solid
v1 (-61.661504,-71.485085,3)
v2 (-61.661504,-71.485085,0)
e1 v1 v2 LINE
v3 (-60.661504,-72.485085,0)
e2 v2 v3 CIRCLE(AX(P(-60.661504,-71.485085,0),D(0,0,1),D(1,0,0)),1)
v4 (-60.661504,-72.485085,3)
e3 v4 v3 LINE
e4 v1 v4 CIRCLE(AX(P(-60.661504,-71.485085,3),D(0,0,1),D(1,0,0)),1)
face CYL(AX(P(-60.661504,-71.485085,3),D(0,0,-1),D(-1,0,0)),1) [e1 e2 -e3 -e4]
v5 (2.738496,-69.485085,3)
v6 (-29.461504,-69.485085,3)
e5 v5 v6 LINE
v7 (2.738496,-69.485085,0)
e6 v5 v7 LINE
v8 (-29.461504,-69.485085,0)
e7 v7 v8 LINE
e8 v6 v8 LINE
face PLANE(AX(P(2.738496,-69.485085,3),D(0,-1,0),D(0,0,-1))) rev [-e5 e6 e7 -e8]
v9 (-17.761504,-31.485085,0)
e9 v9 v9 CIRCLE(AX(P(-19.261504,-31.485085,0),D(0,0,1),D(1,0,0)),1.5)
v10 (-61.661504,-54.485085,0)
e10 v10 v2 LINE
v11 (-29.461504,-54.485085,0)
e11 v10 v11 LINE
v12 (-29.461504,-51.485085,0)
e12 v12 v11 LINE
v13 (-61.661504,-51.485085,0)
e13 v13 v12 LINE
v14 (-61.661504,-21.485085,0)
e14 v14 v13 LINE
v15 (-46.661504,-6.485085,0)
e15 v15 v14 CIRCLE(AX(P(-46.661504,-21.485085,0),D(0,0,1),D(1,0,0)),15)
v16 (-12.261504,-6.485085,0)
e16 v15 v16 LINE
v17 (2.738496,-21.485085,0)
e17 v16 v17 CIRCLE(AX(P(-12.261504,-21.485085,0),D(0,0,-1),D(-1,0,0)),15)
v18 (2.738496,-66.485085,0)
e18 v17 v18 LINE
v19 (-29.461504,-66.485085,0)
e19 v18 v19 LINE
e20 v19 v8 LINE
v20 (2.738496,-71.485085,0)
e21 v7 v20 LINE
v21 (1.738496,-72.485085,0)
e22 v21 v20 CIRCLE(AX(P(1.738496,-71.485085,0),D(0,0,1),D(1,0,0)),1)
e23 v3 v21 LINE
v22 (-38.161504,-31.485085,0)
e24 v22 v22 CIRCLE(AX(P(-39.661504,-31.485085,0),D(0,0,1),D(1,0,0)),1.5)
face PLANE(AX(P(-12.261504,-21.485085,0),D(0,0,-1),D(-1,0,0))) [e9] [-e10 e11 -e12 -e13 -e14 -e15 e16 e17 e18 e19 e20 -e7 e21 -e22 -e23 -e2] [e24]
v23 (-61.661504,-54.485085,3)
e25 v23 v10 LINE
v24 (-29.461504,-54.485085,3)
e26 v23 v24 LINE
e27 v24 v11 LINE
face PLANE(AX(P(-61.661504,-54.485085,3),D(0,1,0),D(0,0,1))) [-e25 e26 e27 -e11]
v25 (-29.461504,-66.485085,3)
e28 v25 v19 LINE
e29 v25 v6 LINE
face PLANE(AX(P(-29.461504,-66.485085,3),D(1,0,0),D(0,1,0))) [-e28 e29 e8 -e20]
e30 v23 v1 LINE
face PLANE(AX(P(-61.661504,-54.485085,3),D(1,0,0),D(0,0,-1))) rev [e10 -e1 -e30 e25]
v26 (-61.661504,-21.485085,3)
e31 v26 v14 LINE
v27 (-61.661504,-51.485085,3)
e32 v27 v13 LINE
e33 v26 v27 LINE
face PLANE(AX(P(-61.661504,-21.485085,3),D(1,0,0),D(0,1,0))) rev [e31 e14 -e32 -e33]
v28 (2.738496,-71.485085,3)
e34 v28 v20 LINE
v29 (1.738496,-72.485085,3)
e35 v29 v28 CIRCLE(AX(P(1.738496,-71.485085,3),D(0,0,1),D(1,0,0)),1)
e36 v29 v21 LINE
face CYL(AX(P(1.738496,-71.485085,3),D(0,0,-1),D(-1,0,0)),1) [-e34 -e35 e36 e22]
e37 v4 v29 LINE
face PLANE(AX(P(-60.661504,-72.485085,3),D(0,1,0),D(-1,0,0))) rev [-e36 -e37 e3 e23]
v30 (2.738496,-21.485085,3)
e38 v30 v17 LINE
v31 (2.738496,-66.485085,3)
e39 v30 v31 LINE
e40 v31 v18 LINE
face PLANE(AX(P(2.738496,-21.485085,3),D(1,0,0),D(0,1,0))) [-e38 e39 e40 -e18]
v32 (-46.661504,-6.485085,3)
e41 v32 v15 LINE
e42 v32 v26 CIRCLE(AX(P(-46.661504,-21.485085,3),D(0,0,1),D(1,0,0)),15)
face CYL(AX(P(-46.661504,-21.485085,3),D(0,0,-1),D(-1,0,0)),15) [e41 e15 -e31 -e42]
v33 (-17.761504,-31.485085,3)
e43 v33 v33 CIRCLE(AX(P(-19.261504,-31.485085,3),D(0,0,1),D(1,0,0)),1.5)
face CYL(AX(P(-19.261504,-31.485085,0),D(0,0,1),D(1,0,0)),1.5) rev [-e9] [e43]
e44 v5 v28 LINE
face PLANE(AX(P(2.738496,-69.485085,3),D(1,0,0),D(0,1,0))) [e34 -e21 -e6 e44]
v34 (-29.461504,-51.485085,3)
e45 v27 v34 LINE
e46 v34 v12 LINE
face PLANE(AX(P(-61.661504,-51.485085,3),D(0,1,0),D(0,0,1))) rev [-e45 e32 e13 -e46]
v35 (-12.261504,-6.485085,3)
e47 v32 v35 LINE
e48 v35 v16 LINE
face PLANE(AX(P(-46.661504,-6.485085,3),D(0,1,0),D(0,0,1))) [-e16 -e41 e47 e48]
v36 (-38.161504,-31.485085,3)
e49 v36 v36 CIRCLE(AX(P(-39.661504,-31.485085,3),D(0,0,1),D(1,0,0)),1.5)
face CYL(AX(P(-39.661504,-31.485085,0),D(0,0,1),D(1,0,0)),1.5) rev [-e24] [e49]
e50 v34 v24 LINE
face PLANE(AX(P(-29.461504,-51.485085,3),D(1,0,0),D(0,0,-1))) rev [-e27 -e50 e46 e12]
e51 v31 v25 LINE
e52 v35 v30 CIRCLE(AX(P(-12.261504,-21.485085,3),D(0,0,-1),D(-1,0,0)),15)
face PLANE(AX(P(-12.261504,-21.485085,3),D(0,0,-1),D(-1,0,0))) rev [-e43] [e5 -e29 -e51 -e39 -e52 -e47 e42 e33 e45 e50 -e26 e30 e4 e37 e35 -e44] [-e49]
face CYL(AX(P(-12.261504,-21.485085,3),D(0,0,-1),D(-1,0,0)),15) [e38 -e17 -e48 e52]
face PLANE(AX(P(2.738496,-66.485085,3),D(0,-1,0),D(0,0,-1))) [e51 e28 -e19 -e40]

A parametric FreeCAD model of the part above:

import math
import FreeCAD as App
import Part
import Sketcher
from FreeCAD import Vector

doc = App.newDocument("Part")
body = doc.addObject("PartDesign::Body", "Body")

# Sketch on XY plane
sketch1 = doc.addObject("Sketcher::SketchObject", "Sketch")
body.addObject(sketch1)
sketch1.AttachmentSupport = (doc.XY_Plane, [""])
sketch1.MapMode = "FlatFace"
sketch1.addGeometry(Part.LineSegment(Vector(-12.261504, -6.485085, 0), Vector(-46.661504, -6.485085, 0)), False)
sketch1.addGeometry(Part.ArcOfCircle(Part.Circle(Vector(-46.661504, -21.485085, 0), Vector(0, 0, 1), 15), math.radians(90), math.radians(180)), False)
sketch1.addGeometry(Part.LineSegment(Vector(-61.661504, -21.485085, 0), Vector(-61.661504, -51.485085, 0)), False)
sketch1.addGeometry(Part.LineSegment(Vector(-61.661504, -51.485085, 0), Vector(-29.461504, -51.485085, 0)), False)
sketch1.addGeometry(Part.LineSegment(Vector(-29.461504, -51.485085, 0), Vector(-29.461504, -54.485085, 0)), False)
sketch1.addGeometry(Part.LineSegment(Vector(-29.461504, -54.485085, 0), Vector(-61.661504, -54.485085, 0)), False)
sketch1.addGeometry(Part.LineSegment(Vector(-61.661504, -54.485085, 0), Vector(-61.661504, -71.485085, 0)), False)
sketch1.addGeometry(Part.ArcOfCircle(Part.Circle(Vector(-60.661504, -71.485085, 0), Vector(0, 0, 1), 1), math.radians(-180), math.radians(-90)), False)
sketch1.addGeometry(Part.LineSegment(Vector(-60.661504, -72.485085, 0), Vector(1.738496, -72.485085, 0)), False)
sketch1.addGeometry(Part.ArcOfCircle(Part.Circle(Vector(1.738496, -71.485085, 0), Vector(0, 0, 1), 1), math.radians(-90), math.radians(0)), False)
sketch1.addGeometry(Part.LineSegment(Vector(2.738496, -71.485085, 0), Vector(2.738496, -69.485085, 0)), False)
sketch1.addGeometry(Part.LineSegment(Vector(2.738496, -69.485085, 0), Vector(-29.461504, -69.485085, 0)), False)
sketch1.addGeometry(Part.LineSegment(Vector(-29.461504, -69.485085, 0), Vector(-29.461504, -66.485085, 0)), False)
sketch1.addGeometry(Part.LineSegment(Vector(-29.461504, -66.485085, 0), Vector(2.738496, -66.485085, 0)), False)
sketch1.addGeometry(Part.LineSegment(Vector(2.738496, -66.485085, 0), Vector(2.738496, -21.485085, 0)), False)
sketch1.addGeometry(Part.ArcOfCircle(Part.Circle(Vector(-12.261504, -21.485085, 0), Vector(0, 0, 1), 15), math.radians(0), math.radians(90)), False)
sketch1.addConstraint(Sketcher.Constraint("Tangent", 0, 2, 1, 1))
sketch1.addConstraint(Sketcher.Constraint("Tangent", 1, 2, 2, 1))
sketch1.addConstraint(Sketcher.Constraint("Coincident", 2, 2, 3, 1))
sketch1.addConstraint(Sketcher.Constraint("Coincident", 3, 2, 4, 1))
sketch1.addConstraint(Sketcher.Constraint("Coincident", 4, 2, 5, 1))
sketch1.addConstraint(Sketcher.Constraint("Coincident", 5, 2, 6, 1))
sketch1.addConstraint(Sketcher.Constraint("Tangent", 6, 2, 7, 1))
sketch1.addConstraint(Sketcher.Constraint("Tangent", 7, 2, 8, 1))
sketch1.addConstraint(Sketcher.Constraint("Tangent", 8, 2, 9, 1))
sketch1.addConstraint(Sketcher.Constraint("Tangent", 9, 2, 10, 1))
sketch1.addConstraint(Sketcher.Constraint("Coincident", 10, 2, 11, 1))
sketch1.addConstraint(Sketcher.Constraint("Coincident", 11, 2, 12, 1))
sketch1.addConstraint(Sketcher.Constraint("Coincident", 12, 2, 13, 1))
sketch1.addConstraint(Sketcher.Constraint("Coincident", 13, 2, 14, 1))
sketch1.addConstraint(Sketcher.Constraint("Tangent", 14, 2, 15, 1))
sketch1.addConstraint(Sketcher.Constraint("Tangent", 15, 2, 0, 1))
sketch1.addConstraint(Sketcher.Constraint("Horizontal", 0))
sketch1.addConstraint(Sketcher.Constraint("Vertical", 2))
sketch1.addConstraint(Sketcher.Constraint("Horizontal", 3))
sketch1.addConstraint(Sketcher.Constraint("Vertical", 4))
sketch1.addConstraint(Sketcher.Constraint("Horizontal", 5))
sketch1.addConstraint(Sketcher.Constraint("Vertical", 6))
sketch1.addConstraint(Sketcher.Constraint("Horizontal", 8))
sketch1.addConstraint(Sketcher.Constraint("Vertical", 10))
sketch1.addConstraint(Sketcher.Constraint("Horizontal", 11))
sketch1.addConstraint(Sketcher.Constraint("Vertical", 12))
sketch1.addConstraint(Sketcher.Constraint("Horizontal", 13))
sketch1.addConstraint(Sketcher.Constraint("Vertical", 14))
sketch1.addConstraint(Sketcher.Constraint("Equal", 7, 9))
sketch1.addConstraint(Sketcher.Constraint("Equal", 1, 15))
sketch1.addConstraint(Sketcher.Constraint("Vertical", 2, 2, 5, 2))
sketch1.addConstraint(Sketcher.Constraint("Vertical", 4, 2, 11, 2))
sketch1.addConstraint(Sketcher.Constraint("Vertical", 10, 2, 13, 2))
sketch1.addConstraint(Sketcher.Constraint("Equal", 5, 11))
sketch1.addConstraint(Sketcher.Constraint("Equal", 4, 12))
sketch1.addConstraint(Sketcher.Constraint("Radius", 1, 15.0))
sketch1.addConstraint(Sketcher.Constraint("Radius", 7, 1.0))
sketch1.addConstraint(Sketcher.Constraint("DistanceY", 2, 2, 2, 1, 30.0))
sketch1.addConstraint(Sketcher.Constraint("DistanceY", 4, 2, 4, 1, 3.0))
sketch1.addConstraint(Sketcher.Constraint("DistanceY", 6, 2, 6, 1, 17.0))
sketch1.addConstraint(Sketcher.Constraint("DistanceY", 10, 1, 10, 2, 2.0))
sketch1.addConstraint(Sketcher.Constraint("DistanceX", 0, 2, 0, 1, 34.4))
sketch1.addConstraint(Sketcher.Constraint("DistanceX", 1, 3, -1, 1, 46.661504))
sketch1.addConstraint(Sketcher.Constraint("DistanceY", 1, 3, -1, 1, 21.485085))
pad1 = doc.addObject("PartDesign::Pad", "Pad")
body.addObject(pad1)
pad1.Profile = sketch1
pad1.Length = 3

# Sketch on XY plane
sketch2 = doc.addObject("Sketcher::SketchObject", "Sketch001")
body.addObject(sketch2)
sketch2.AttachmentSupport = (doc.XY_Plane, [""])
sketch2.MapMode = "FlatFace"
sketch2.AttachmentOffset = App.Placement(Vector(0, 0, 3), App.Rotation())
sketch2.addGeometry(Part.Circle(Vector(-19.261504, -31.485085, 0), Vector(0, 0, 1), 1.5), False)
sketch2.addGeometry(Part.Circle(Vector(-39.661504, -31.485085, 0), Vector(0, 0, 1), 1.5), False)
sketch2.addConstraint(Sketcher.Constraint("Equal", 0, 1))
sketch2.addConstraint(Sketcher.Constraint("Horizontal", 0, 3, 1, 3))
sketch2.addConstraint(Sketcher.Constraint("Diameter", 0, 3.0))
sketch2.addConstraint(Sketcher.Constraint("DistanceX", 1, 3, 0, 3, 20.4))
sketch2.addConstraint(Sketcher.Constraint("DistanceX", 0, 3, -1, 1, 19.261504))
sketch2.addConstraint(Sketcher.Constraint("DistanceY", 0, 3, -1, 1, 31.485085))
pocket1 = doc.addObject("PartDesign::Pocket", "Pocket")
body.addObject(pocket1)
pocket1.Profile = sketch2
pocket1.Length = 3

doc.recompute()
